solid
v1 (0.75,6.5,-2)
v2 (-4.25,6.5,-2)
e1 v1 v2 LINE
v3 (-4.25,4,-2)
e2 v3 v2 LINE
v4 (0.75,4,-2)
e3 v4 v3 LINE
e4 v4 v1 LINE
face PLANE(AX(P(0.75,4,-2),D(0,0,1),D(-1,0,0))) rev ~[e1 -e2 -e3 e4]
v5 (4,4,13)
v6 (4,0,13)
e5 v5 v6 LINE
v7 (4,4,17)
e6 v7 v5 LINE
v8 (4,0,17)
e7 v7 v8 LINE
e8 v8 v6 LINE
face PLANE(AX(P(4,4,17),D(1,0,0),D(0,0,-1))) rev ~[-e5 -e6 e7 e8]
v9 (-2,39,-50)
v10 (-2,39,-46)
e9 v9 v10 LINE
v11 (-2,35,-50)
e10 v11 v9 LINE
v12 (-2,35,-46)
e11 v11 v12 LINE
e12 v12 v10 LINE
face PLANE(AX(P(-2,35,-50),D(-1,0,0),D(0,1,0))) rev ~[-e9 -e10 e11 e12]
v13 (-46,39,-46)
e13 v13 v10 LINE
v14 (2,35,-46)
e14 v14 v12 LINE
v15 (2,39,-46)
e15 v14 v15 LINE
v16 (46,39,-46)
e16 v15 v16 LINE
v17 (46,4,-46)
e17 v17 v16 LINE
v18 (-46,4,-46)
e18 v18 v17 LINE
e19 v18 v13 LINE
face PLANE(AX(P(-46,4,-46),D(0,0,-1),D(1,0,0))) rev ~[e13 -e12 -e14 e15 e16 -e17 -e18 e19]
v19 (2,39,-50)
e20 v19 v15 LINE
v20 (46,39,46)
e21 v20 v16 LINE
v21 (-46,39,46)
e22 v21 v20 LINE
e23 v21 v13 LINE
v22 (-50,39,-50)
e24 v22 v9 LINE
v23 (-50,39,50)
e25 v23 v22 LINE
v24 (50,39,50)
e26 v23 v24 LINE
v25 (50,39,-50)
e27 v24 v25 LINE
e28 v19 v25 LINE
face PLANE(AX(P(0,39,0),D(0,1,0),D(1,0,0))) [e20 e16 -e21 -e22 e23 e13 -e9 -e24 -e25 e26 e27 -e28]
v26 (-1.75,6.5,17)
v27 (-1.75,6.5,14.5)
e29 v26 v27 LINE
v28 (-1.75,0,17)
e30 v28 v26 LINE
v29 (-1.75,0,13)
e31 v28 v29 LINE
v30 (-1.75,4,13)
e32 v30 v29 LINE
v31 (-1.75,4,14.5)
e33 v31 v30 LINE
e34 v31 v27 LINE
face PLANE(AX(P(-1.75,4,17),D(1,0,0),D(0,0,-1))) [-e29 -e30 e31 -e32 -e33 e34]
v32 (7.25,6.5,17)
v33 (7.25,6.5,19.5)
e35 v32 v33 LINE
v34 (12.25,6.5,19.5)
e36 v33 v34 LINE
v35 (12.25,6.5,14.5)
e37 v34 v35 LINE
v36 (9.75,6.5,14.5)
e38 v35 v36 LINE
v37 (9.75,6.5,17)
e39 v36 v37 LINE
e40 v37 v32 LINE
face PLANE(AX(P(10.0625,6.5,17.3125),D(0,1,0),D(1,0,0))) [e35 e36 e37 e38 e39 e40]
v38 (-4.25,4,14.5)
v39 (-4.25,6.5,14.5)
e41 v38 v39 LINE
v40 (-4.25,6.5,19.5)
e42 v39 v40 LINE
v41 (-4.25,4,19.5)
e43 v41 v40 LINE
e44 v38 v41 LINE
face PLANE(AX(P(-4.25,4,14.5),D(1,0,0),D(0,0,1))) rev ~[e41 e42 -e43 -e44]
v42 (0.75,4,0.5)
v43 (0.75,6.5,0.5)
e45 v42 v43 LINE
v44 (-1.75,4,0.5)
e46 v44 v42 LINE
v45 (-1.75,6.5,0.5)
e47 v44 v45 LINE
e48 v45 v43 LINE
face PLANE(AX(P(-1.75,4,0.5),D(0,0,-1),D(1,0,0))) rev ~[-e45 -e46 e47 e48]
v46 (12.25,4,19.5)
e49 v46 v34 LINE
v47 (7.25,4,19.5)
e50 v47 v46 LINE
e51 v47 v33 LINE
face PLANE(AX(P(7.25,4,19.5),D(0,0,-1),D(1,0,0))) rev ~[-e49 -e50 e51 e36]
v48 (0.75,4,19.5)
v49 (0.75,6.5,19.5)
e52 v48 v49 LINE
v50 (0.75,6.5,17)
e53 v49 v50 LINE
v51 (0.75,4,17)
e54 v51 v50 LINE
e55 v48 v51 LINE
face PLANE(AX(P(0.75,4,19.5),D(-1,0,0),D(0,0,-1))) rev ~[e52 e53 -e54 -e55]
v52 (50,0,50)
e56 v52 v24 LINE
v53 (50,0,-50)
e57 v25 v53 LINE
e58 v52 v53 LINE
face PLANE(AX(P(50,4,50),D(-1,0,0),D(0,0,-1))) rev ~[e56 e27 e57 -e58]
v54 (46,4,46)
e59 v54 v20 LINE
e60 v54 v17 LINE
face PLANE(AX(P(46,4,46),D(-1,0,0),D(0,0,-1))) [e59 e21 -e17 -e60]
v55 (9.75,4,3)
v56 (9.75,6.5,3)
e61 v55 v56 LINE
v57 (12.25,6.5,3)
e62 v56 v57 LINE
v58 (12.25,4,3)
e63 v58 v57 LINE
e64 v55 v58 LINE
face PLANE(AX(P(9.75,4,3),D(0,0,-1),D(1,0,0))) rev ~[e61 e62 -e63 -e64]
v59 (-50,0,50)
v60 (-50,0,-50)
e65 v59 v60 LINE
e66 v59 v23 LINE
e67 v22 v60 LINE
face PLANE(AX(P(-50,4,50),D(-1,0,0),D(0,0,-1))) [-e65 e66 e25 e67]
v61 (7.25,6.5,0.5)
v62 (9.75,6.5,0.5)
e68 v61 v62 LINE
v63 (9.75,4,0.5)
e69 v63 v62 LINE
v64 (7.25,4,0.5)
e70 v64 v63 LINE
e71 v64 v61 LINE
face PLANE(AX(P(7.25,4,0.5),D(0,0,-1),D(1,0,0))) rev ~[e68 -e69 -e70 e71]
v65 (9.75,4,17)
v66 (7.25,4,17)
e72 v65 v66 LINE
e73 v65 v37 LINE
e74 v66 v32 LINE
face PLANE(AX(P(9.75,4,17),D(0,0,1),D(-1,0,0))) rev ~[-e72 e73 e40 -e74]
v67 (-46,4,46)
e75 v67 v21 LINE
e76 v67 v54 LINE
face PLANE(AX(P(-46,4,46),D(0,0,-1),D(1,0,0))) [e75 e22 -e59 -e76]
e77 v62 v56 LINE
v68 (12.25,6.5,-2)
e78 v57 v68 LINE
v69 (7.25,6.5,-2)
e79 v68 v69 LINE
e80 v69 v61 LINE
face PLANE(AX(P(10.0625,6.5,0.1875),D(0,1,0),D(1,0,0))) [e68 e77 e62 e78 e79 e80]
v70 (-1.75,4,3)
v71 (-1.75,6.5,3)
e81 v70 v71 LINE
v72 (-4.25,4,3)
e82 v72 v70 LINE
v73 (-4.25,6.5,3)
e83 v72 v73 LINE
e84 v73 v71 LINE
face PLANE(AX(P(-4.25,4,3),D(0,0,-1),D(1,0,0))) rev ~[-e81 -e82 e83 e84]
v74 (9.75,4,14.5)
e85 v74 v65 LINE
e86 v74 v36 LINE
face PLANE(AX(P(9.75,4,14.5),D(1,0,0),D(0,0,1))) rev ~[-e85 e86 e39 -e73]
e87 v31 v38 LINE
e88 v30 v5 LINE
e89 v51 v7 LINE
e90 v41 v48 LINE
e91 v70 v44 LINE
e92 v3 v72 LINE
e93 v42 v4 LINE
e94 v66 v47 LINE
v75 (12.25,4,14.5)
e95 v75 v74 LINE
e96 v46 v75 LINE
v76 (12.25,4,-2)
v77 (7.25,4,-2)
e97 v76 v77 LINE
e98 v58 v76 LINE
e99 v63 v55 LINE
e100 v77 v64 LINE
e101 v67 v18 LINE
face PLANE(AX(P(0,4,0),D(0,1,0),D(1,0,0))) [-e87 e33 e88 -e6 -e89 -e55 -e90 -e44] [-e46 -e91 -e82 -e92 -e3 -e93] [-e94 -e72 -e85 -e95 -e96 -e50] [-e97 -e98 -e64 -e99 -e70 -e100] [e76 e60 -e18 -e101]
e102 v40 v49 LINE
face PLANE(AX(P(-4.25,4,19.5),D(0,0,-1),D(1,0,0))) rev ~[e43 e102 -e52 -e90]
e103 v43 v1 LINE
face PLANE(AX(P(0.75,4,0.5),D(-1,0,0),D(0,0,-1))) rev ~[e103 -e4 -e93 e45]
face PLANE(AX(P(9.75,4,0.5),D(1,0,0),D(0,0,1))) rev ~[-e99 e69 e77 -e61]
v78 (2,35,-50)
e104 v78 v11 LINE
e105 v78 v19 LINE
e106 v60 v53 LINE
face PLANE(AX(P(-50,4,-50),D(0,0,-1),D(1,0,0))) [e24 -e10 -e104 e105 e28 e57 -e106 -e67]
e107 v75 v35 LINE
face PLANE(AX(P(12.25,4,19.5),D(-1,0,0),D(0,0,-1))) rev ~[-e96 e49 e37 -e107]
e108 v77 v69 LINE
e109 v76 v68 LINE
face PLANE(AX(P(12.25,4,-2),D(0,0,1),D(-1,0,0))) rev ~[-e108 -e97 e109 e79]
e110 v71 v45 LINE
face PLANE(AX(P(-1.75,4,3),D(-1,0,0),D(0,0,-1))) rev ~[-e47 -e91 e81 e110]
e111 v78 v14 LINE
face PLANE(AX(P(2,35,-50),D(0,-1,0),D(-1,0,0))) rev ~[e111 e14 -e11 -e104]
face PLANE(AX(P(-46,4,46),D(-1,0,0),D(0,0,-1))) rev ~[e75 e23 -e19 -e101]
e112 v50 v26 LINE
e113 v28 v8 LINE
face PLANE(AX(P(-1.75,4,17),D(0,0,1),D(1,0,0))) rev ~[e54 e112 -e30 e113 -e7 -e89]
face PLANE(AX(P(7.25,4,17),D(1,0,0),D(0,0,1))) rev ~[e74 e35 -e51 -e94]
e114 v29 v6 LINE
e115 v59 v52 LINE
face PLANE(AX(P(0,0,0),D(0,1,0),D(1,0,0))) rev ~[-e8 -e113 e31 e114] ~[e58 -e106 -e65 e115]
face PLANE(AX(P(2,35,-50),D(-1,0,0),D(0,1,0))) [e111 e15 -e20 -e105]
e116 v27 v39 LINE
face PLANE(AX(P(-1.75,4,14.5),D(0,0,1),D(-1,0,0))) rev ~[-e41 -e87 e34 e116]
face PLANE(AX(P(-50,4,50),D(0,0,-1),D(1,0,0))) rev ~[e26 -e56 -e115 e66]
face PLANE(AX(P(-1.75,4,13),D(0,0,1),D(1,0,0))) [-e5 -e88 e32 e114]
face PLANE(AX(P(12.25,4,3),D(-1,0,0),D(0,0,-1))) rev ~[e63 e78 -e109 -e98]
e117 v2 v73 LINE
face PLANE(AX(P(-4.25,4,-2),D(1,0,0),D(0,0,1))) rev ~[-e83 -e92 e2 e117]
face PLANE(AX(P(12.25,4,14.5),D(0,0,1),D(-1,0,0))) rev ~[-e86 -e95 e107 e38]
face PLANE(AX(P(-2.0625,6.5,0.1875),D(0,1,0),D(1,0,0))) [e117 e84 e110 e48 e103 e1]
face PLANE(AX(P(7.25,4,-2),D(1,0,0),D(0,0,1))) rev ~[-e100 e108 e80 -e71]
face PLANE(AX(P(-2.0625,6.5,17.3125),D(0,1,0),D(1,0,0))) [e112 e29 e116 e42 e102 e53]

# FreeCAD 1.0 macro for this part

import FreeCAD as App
import Part
import Sketcher
Q = App.Units.Quantity

doc = App.newDocument("Part")
body = doc.addObject("PartDesign::Body", "Body")

sketch1 = doc.addObject("Sketcher::SketchObject", "Sketch")
body.addObject(sketch1)
sketch1.AttachmentSupport = (doc.XZ_Plane, [""])
sketch1.MapMode = "FlatFace"
sketch1.addGeometry(Part.LineSegment(App.Vector(-50, -50, 0), App.Vector(-50, 50, 0)), False)
sketch1.addGeometry(Part.LineSegment(App.Vector(-50, 50, 0), App.Vector(50, 50, 0)), False)
sketch1.addGeometry(Part.LineSegment(App.Vector(50, 50, 0), App.Vector(50, -50, 0)), False)
sketch1.addGeometry(Part.LineSegment(App.Vector(50, -50, 0), App.Vector(-50, -50, 0)), False)
sketch1.addConstraint(Sketcher.Constraint("Coincident", 0, 2, 1, 1))
sketch1.addConstraint(Sketcher.Constraint("Coincident", 1, 2, 2, 1))
sketch1.addConstraint(Sketcher.Constraint("Coincident", 2, 2, 3, 1))
sketch1.addConstraint(Sketcher.Constraint("Coincident", 3, 2, 0, 1))
sketch1.addConstraint(Sketcher.Constraint("Vertical", 0))
sketch1.addConstraint(Sketcher.Constraint("Horizontal", 1))
sketch1.addConstraint(Sketcher.Constraint("Vertical", 2))
sketch1.addConstraint(Sketcher.Constraint("Horizontal", 3))
sketch1.addConstraint(Sketcher.Constraint("Symmetric", 0, 2, 2, 2, -1, 1))
sketch1.addConstraint(Sketcher.Constraint("Equal", 3, 0))
sketch1.addConstraint(Sketcher.Constraint("DistanceX", 1, 1, 1, 2, Q("100 mm")))
pad1 = doc.addObject("PartDesign::Pad", "Pad")
body.addObject(pad1)
pad1.Profile = sketch1
pad1.Length = 4
pad1.Reversed = True

sketch2 = doc.addObject("Sketcher::SketchObject", "Sketch001")
body.addObject(sketch2)
sketch2.AttachmentSupport = (doc.XZ_Plane, [""])
sketch2.MapMode = "FlatFace"
sketch2.AttachmentOffset = App.Placement(App.Vector(0, 0, -4), App.Rotation())
sketch2.addGeometry(Part.LineSegment(App.Vector(-50, -50, 0), App.Vector(-50, 50, 0)), False)
sketch2.addGeometry(Part.LineSegment(App.Vector(-50, 50, 0), App.Vector(50, 50, 0)), False)
sketch2.addGeometry(Part.LineSegment(App.Vector(50, 50, 0), App.Vector(50, -50, 0)), False)
sketch2.addGeometry(Part.LineSegment(App.Vector(50, -50, 0), App.Vector(-50, -50, 0)), False)
sketch2.addGeometry(Part.LineSegment(App.Vector(46, 46, 0), App.Vector(-46, 46, 0)), False)
sketch2.addGeometry(Part.LineSegment(App.Vector(-46, 46, 0), App.Vector(-46, -46, 0)), False)
sketch2.addGeometry(Part.LineSegment(App.Vector(-46, -46, 0), App.Vector(46, -46, 0)), False)
sketch2.addGeometry(Part.LineSegment(App.Vector(46, -46, 0), App.Vector(46, 46, 0)), False)
sketch2.addConstraint(Sketcher.Constraint("Coincident", 0, 2, 1, 1))
sketch2.addConstraint(Sketcher.Constraint("Coincident", 1, 2, 2, 1))
sketch2.addConstraint(Sketcher.Constraint("Coincident", 2, 2, 3, 1))
sketch2.addConstraint(Sketcher.Constraint("Coincident", 3, 2, 0, 1))
sketch2.addConstraint(Sketcher.Constraint("Coincident", 4, 2, 5, 1))
sketch2.addConstraint(Sketcher.Constraint("Coincident", 5, 2, 6, 1))
sketch2.addConstraint(Sketcher.Constraint("Coincident", 6, 2, 7, 1))
sketch2.addConstraint(Sketcher.Constraint("Coincident", 7, 2, 4, 1))
sketch2.addConstraint(Sketcher.Constraint("Vertical", 0))
sketch2.addConstraint(Sketcher.Constraint("Horizontal", 1))
sketch2.addConstraint(Sketcher.Constraint("Vertical", 2))
sketch2.addConstraint(Sketcher.Constraint("Horizontal", 3))
sketch2.addConstraint(Sketcher.Constraint("Horizontal", 4))
sketch2.addConstraint(Sketcher.Constraint("Vertical", 5))
sketch2.addConstraint(Sketcher.Constraint("Horizontal", 6))
sketch2.addConstraint(Sketcher.Constraint("Vertical", 7))
sketch2.addConstraint(Sketcher.Constraint("Symmetric", 0, 2, 2, 2, -1, 1))
sketch2.addConstraint(Sketcher.Constraint("Symmetric", 4, 2, 6, 2, -1, 1))
sketch2.addConstraint(Sketcher.Constraint("Equal", 3, 0))
sketch2.addConstraint(Sketcher.Constraint("Equal", 6, 5))
sketch2.addConstraint(Sketcher.Constraint("DistanceX", 1, 1, 1, 2, Q("100 mm")))
sketch2.addConstraint(Sketcher.Constraint("DistanceX", 4, 2, 4, 1, Q("92 mm")))
pad2 = doc.addObject("PartDesign::Pad", "Pad001")
body.addObject(pad2)
pad2.Profile = sketch2
pad2.Length = 35
pad2.Reversed = True

sketch3 = doc.addObject("Sketcher::SketchObject", "Sketch002")
body.addObject(sketch3)
sketch3.AttachmentSupport = (doc.XY_Plane, [""])
sketch3.MapMode = "FlatFace"
sketch3.AttachmentOffset = App.Placement(App.Vector(0, 0, -50), App.Rotation())
sketch3.addGeometry(Part.LineSegment(App.Vector(2, 39, 0), App.Vector(2, 35, 0)), False)
sketch3.addGeometry(Part.LineSegment(App.Vector(2, 35, 0), App.Vector(-2, 35, 0)), False)
sketch3.addGeometry(Part.LineSegment(App.Vector(-2, 35, 0), App.Vector(-2, 39, 0)), False)
sketch3.addGeometry(Part.LineSegment(App.Vector(-2, 39, 0), App.Vector(2, 39, 0)), False)
sketch3.addConstraint(Sketcher.Constraint("Coincident", 0, 2, 1, 1))
sketch3.addConstraint(Sketcher.Constraint("Coincident", 1, 2, 2, 1))
sketch3.addConstraint(Sketcher.Constraint("Coincident", 2, 2, 3, 1))
sketch3.addConstraint(Sketcher.Constraint("Coincident", 3, 2, 0, 1))
sketch3.addConstraint(Sketcher.Constraint("Vertical", 0))
sketch3.addConstraint(Sketcher.Constraint("Horizontal", 1))
sketch3.addConstraint(Sketcher.Constraint("Vertical", 2))
sketch3.addConstraint(Sketcher.Constraint("Horizontal", 3))
sketch3.addConstraint(Sketcher.Constraint("Equal", 3, 0))
sketch3.addConstraint(Sketcher.Constraint("DistanceX", 1, 2, 1, 1, Q("4 mm")))
sketch3.addConstraint(Sketcher.Constraint("DistanceX", -1, 1, 0, 2, Q("2 mm")))
sketch3.addConstraint(Sketcher.Constraint("DistanceY", -1, 1, 0, 2, Q("35 mm")))
pocket1 = doc.addObject("PartDesign::Pocket", "Pocket")
body.addObject(pocket1)
pocket1.Profile = sketch3
pocket1.Length = 4
pocket1.Reversed = True

sketch4 = doc.addObject("Sketcher::SketchObject", "Sketch003")
body.addObject(sketch4)
sketch4.AttachmentSupport = (doc.XZ_Plane, [""])
sketch4.MapMode = "FlatFace"
sketch4.AttachmentOffset = App.Placement(App.Vector(0, 0, -4), App.Rotation())
sketch4.addGeometry(Part.LineSegment(App.Vector(-1.8, 0.5, 0), App.Vector(0.8, 0.5, 0)), False)
sketch4.addGeometry(Part.LineSegment(App.Vector(0.8, 0.5, 0), App.Vector(0.8, -2, 0)), False)
sketch4.addGeometry(Part.LineSegment(App.Vector(0.8, -2, 0), App.Vector(-4.2, -2, 0)), False)
sketch4.addGeometry(Part.LineSegment(App.Vector(-4.2, -2, 0), App.Vector(-4.2, 3, 0)), False)
sketch4.addGeometry(Part.LineSegment(App.Vector(-4.2, 3, 0), App.Vector(-1.8, 3, 0)), False)
sketch4.addGeometry(Part.LineSegment(App.Vector(-1.8, 3, 0), App.Vector(-1.8, 0.5, 0)), False)
sketch4.addGeometry(Part.LineSegment(App.Vector(7.2, 0.5, 0), App.Vector(9.8, 0.5, 0)), False)
sketch4.addGeometry(Part.LineSegment(App.Vector(9.8, 0.5, 0), App.Vector(9.8, 3, 0)), False)
sketch4.addGeometry(Part.LineSegment(App.Vector(9.8, 3, 0), App.Vector(12.2, 3, 0)), False)
sketch4.addGeometry(Part.LineSegment(App.Vector(12.2, 3, 0), App.Vector(12.2, -2, 0)), False)
sketch4.addGeometry(Part.LineSegment(App.Vector(12.2, -2, 0), App.Vector(7.2, -2, 0)), False)
sketch4.addGeometry(Part.LineSegment(App.Vector(7.2, -2, 0), App.Vector(7.2, 0.5, 0)), False)
sketch4.addGeometry(Part.LineSegment(App.Vector(12.2, 14.5, 0), App.Vector(9.8, 14.5, 0)), False)
sketch4.addGeometry(Part.LineSegment(App.Vector(9.8, 14.5, 0), App.Vector(9.8, 17, 0)), False)
sketch4.addGeometry(Part.LineSegment(App.Vector(9.8, 17, 0), App.Vector(7.2, 17, 0)), False)
sketch4.addGeometry(Part.LineSegment(App.Vector(7.2, 17, 0), App.Vector(7.2, 19.5, 0)), False)
sketch4.addGeometry(Part.LineSegment(App.Vector(7.2, 19.5, 0), App.Vector(12.2, 19.5, 0)), False)
sketch4.addGeometry(Part.LineSegment(App.Vector(12.2, 19.5, 0), App.Vector(12.2, 14.5, 0)), False)
sketch4.addGeometry(Part.LineSegment(App.Vector(-1.8, 17, 0), App.Vector(-1.8, 14.5, 0)), False)
sketch4.addGeometry(Part.LineSegment(App.Vector(-1.8, 14.5, 0), App.Vector(-4.2, 14.5, 0)), False)
sketch4.addGeometry(Part.LineSegment(App.Vector(-4.2, 14.5, 0), App.Vector(-4.2, 19.5, 0)), False)
sketch4.addGeometry(Part.LineSegment(App.Vector(-4.2, 19.5, 0), App.Vector(0.8, 19.5, 0)), False)
sketch4.addGeometry(Part.LineSegment(App.Vector(0.8, 19.5, 0), App.Vector(0.8, 17, 0)), False)
sketch4.addGeometry(Part.LineSegment(App.Vector(0.8, 17, 0), App.Vector(-1.8, 17, 0)), False)
sketch4.addConstraint(Sketcher.Constraint("Coincident", 0, 2, 1, 1))
sketch4.addConstraint(Sketcher.Constraint("Coincident", 1, 2, 2, 1))
sketch4.addConstraint(Sketcher.Constraint("Coincident", 2, 2, 3, 1))
sketch4.addConstraint(Sketcher.Constraint("Coincident", 3, 2, 4, 1))
sketch4.addConstraint(Sketcher.Constraint("Coincident", 4, 2, 5, 1))
sketch4.addConstraint(Sketcher.Constraint("Coincident", 5, 2, 0, 1))
sketch4.addConstraint(Sketcher.Constraint("Coincident", 6, 2, 7, 1))
sketch4.addConstraint(Sketcher.Constraint("Coincident", 7, 2, 8, 1))
sketch4.addConstraint(Sketcher.Constraint("Coincident", 8, 2, 9, 1))
sketch4.addConstraint(Sketcher.Constraint("Coincident", 9, 2, 10, 1))
sketch4.addConstraint(Sketcher.Constraint("Coincident", 10, 2, 11, 1))
sketch4.addConstraint(Sketcher.Constraint("Coincident", 11, 2, 6, 1))
sketch4.addConstraint(Sketcher.Constraint("Coincident", 12, 2, 13, 1))
sketch4.addConstraint(Sketcher.Constraint("Coincident", 13, 2, 14, 1))
sketch4.addConstraint(Sketcher.Constraint("Coincident", 14, 2, 15, 1))
sketch4.addConstraint(Sketcher.Constraint("Coincident", 15, 2, 16, 1))
sketch4.addConstraint(Sketcher.Constraint("Coincident", 16, 2, 17, 1))
sketch4.addConstraint(Sketcher.Constraint("Coincident", 17, 2, 12, 1))
sketch4.addConstraint(Sketcher.Constraint("Coincident", 18, 2, 19, 1))
sketch4.addConstraint(Sketcher.Constraint("Coincident", 19, 2, 20, 1))
sketch4.addConstraint(Sketcher.Constraint("Coincident", 20, 2, 21, 1))
sketch4.addConstraint(Sketcher.Constraint("Coincident", 21, 2, 22, 1))
sketch4.addConstraint(Sketcher.Constraint("Coincident", 22, 2, 23, 1))
sketch4.addConstraint(Sketcher.Constraint("Coincident", 23, 2, 18, 1))
sketch4.addConstraint(Sketcher.Constraint("Horizontal", 0))
sketch4.addConstraint(Sketcher.Constraint("Vertical", 1))
sketch4.addConstraint(Sketcher.Constraint("Horizontal", 2))
sketch4.addConstraint(Sketcher.Constraint("Vertical", 3))
sketch4.addConstraint(Sketcher.Constraint("Horizontal", 4))
sketch4.addConstraint(Sketcher.Constraint("Vertical", 5))
sketch4.addConstraint(Sketcher.Constraint("Horizontal", 6))
sketch4.addConstraint(Sketcher.Constraint("Vertical", 7))
sketch4.addConstraint(Sketcher.Constraint("Horizontal", 8))
sketch4.addConstraint(Sketcher.Constraint("Vertical", 9))
sketch4.addConstraint(Sketcher.Constraint("Horizontal", 10))
sketch4.addConstraint(Sketcher.Constraint("Vertical", 11))
sketch4.addConstraint(Sketcher.Constraint("Horizontal", 12))
sketch4.addConstraint(Sketcher.Constraint("Vertical", 13))
sketch4.addConstraint(Sketcher.Constraint("Horizontal", 14))
sketch4.addConstraint(Sketcher.Constraint("Vertical", 15))
sketch4.addConstraint(Sketcher.Constraint("Horizontal", 16))
sketch4.addConstraint(Sketcher.Constraint("Vertical", 17))
sketch4.addConstraint(Sketcher.Constraint("Vertical", 18))
sketch4.addConstraint(Sketcher.Constraint("Horizontal", 19))
sketch4.addConstraint(Sketcher.Constraint("Vertical", 20))
sketch4.addConstraint(Sketcher.Constraint("Horizontal", 21))
sketch4.addConstraint(Sketcher.Constraint("Vertical", 22))
sketch4.addConstraint(Sketcher.Constraint("Horizontal", 23))
sketch4.addConstraint(Sketcher.Constraint("Horizontal", 5, 2, 6, 2))
sketch4.addConstraint(Sketcher.Constraint("Horizontal", 4, 2, 7, 2))
sketch4.addConstraint(Sketcher.Constraint("Horizontal", 2, 2, 9, 2))
sketch4.addConstraint(Sketcher.Constraint("Horizontal", 17, 2, 18, 2))
sketch4.addConstraint(Sketcher.Constraint("Horizontal", 16, 2, 20, 2))
sketch4.addConstraint(Sketcher.Constraint("Horizontal", 14, 2, 22, 2))
sketch4.addConstraint(Sketcher.Constraint("Vertical", 7, 2, 12, 2))
sketch4.addConstraint(Sketcher.Constraint("Vertical", 11, 2, 14, 2))
sketch4.addConstraint(Sketcher.Constraint("Vertical", 9, 2, 16, 2))
sketch4.addConstraint(Sketcher.Constraint("Vertical", 5, 2, 18, 2))
sketch4.addConstraint(Sketcher.Constraint("Vertical", 3, 2, 19, 2))
sketch4.addConstraint(Sketcher.Constraint("Vertical", 1, 2, 21, 2))
sketch4.addConstraint(Sketcher.Constraint("Equal", 0, 4))
sketch4.addConstraint(Sketcher.Constraint("Equal", 4, 6))
sketch4.addConstraint(Sketcher.Constraint("Equal", 6, 8))
sketch4.addConstraint(Sketcher.Constraint("Equal", 23, 1))
sketch4.addConstraint(Sketcher.Constraint("Equal", 21, 3))
sketch4.addConstraint(Sketcher.Constraint("Equal", 11, 13))
sketch4.addConstraint(Sketcher.Constraint("Equal", 13, 15))
sketch4.addConstraint(Sketcher.Constraint("DistanceX", 2, 2, 2, 1, Q("5 mm")))
sketch4.addConstraint(Sketcher.Constraint("DistanceY", 1, 2, -1, 1, Q("2 mm")))
sketch4.addConstraint(Sketcher.Constraint("DistanceY", -1, 1, 13, 2, Q("17 mm")))
sketch4.addConstraint(Sketcher.Constraint("DistanceX", 0, 2, 6, 2, Q("9 mm")))
sketch4.addConstraint(Sketcher.Constraint("DistanceX", -1, 1, 0, 2, Q("0.75 mm")))
pad3 = doc.addObject("PartDesign::Pad", "Pad002")
body.addObject(pad3)
pad3.Profile = sketch4
pad3.Length = 2.5
pad3.Reversed = True

sketch5 = doc.addObject("Sketcher::SketchObject", "Sketch004")
body.addObject(sketch5)
sketch5.AttachmentSupport = (doc.XZ_Plane, [""])
sketch5.MapMode = "FlatFace"
sketch5.AttachmentOffset = App.Placement(App.Vector(0, 0, -4), App.Rotation())
sketch5.addGeometry(Part.LineSegment(App.Vector(-1.8, 13, 0), App.Vector(-1.8, 17, 0)), False)
sketch5.addGeometry(Part.LineSegment(App.Vector(-1.8, 17, 0), App.Vector(4, 17, 0)), False)
sketch5.addGeometry(Part.LineSegment(App.Vector(4, 17, 0), App.Vector(4, 13, 0)), False)
sketch5.addGeometry(Part.LineSegment(App.Vector(4, 13, 0), App.Vector(-1.8, 13, 0)), False)
sketch5.addConstraint(Sketcher.Constraint("Coincident", 0, 2, 1, 1))
sketch5.addConstraint(Sketcher.Constraint("Coincident", 1, 2, 2, 1))
sketch5.addConstraint(Sketcher.Constraint("Coincident", 2, 2, 3, 1))
sketch5.addConstraint(Sketcher.Constraint("Coincident", 3, 2, 0, 1))
sketch5.addConstraint(Sketcher.Constraint("Vertical", 0))
sketch5.addConstraint(Sketcher.Constraint("Horizontal", 1))
sketch5.addConstraint(Sketcher.Constraint("Vertical", 2))
sketch5.addConstraint(Sketcher.Constraint("Horizontal", 3))
sketch5.addConstraint(Sketcher.Constraint("DistanceY", 0, 1, 0, 2, Q("4 mm")))
sketch5.addConstraint(Sketcher.Constraint("DistanceY", -1, 1, 0, 2, Q("17 mm")))
sketch5.addConstraint(Sketcher.Constraint("DistanceX", -1, 1, 1, 2, Q("4 mm")))
sketch5.addConstraint(Sketcher.Constraint("DistanceX", 1, 1, 1, 2, Q("5.75 mm")))
pocket2 = doc.addObject("PartDesign::Pocket", "Pocket001")
body.addObject(pocket2)
pocket2.Profile = sketch5
pocket2.Length = 4
pocket2.Reversed = True

doc.recompute()
